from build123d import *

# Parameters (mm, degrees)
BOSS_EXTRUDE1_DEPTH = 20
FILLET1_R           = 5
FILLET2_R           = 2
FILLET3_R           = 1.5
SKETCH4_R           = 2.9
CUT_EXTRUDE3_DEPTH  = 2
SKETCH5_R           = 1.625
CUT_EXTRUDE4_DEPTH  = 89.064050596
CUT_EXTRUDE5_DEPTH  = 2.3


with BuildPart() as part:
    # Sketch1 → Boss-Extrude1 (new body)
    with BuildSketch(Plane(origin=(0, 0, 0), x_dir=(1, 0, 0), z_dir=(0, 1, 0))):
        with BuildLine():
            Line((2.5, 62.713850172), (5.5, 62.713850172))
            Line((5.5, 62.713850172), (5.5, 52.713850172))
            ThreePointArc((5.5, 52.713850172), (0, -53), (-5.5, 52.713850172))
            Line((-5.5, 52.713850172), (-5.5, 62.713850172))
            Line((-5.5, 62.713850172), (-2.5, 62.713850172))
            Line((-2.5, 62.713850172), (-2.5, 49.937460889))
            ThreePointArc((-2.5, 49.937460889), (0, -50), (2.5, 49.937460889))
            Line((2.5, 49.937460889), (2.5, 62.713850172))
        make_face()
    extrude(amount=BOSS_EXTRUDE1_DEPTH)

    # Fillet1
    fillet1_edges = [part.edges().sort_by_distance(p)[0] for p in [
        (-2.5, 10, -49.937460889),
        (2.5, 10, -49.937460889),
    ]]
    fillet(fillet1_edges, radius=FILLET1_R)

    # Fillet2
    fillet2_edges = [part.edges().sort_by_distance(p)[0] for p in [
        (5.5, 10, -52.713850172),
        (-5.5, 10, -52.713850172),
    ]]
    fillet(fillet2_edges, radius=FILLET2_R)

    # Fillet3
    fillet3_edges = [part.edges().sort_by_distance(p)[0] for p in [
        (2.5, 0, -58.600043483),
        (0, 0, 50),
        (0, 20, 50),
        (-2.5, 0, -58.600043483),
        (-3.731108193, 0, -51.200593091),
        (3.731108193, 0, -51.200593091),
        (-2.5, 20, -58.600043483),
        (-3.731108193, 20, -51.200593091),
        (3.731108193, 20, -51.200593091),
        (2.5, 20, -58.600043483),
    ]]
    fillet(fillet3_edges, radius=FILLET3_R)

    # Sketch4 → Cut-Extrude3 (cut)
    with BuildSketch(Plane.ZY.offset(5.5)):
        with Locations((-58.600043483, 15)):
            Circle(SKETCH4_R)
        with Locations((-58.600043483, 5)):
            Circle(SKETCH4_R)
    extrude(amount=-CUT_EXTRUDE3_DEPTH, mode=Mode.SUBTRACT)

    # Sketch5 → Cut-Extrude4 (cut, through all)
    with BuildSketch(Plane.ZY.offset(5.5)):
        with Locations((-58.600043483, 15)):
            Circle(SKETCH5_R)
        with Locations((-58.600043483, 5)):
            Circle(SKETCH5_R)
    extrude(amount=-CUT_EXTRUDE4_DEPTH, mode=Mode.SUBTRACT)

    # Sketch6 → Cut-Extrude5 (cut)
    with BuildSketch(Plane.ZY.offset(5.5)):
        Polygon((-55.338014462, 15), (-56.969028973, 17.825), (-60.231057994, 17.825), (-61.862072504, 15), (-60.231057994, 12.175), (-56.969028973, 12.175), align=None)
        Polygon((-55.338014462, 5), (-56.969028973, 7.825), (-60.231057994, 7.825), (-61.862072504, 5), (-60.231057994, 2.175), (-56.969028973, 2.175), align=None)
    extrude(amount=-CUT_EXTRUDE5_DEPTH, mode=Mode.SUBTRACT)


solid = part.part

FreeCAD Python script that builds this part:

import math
import FreeCAD as App
import Part
import Sketcher
from FreeCAD import Vector
Q = App.Units.Quantity


def edges_at(feature, points):
    """Names of the edges that pass closest to the given points."""
    edges = feature.Shape.Edges
    near = lambda p: min(range(len(edges)), key=lambda i: edges[i].distToShape(Part.Vertex(*p))[0])
    return sorted({f"Edge{near(p) + 1}" for p in points})


def add_polygon(sketch, points):
    """Adds a closed chain of lines whose ends are joined by coincident constraints."""
    first, n = sketch.GeometryCount, len(points)
    for a, b in zip(points, points[1:] + points[:1]):
        sketch.addGeometry(Part.LineSegment(App.Vector(*a, 0), App.Vector(*b, 0)), False)
    for i in range(n):
        sketch.addConstraint(Sketcher.Constraint("Coincident", first + i, 2, first + (i + 1) % n, 1))

doc = App.newDocument("Part")
body = doc.addObject("PartDesign::Body", "Body")

# Sketch on XZ plane
sketch1 = body.newObject("Sketcher::SketchObject", "Sketch")
sketch1.AttachmentSupport = (doc.getObject("XZ_Plane"), [""])
sketch1.MapMode = "FlatFace"
sketch1.addGeometry([
    Part.LineSegment(Vector(5.5, -62.7, 0), Vector(2.5, -62.7, 0)),  # 0
    Part.LineSegment(Vector(2.5, -62.7, 0), Vector(2.5, -49.9, 0)),  # 1
    Part.ArcOfCircle(Part.Circle(Vector(0, 0, 0), Vector(0, 0, 1), 50), math.radians(-87), math.radians(267)),  # 2
    Part.LineSegment(Vector(-2.5, -49.9, 0), Vector(-2.5, -62.7, 0)),  # 3
    Part.LineSegment(Vector(-2.5, -62.7, 0), Vector(-5.5, -62.7, 0)),  # 4
    Part.LineSegment(Vector(-5.5, -62.7, 0), Vector(-5.5, -52.7, 0)),  # 5
    Part.ArcOfCircle(Part.Circle(Vector(0, 0, 0), Vector(0, 0, 1), 53), math.radians(-84), math.radians(264)),  # 6
    Part.LineSegment(Vector(5.5, -52.7, 0), Vector(5.5, -62.7, 0)),  # 7
], False)
sketch1.addConstraint([
    Sketcher.Constraint("Coincident", 0, 2, 1, 1),
    Sketcher.Constraint("Coincident", 1, 2, 2, 1),
    Sketcher.Constraint("Coincident", 2, 2, 3, 1),
    Sketcher.Constraint("Coincident", 3, 2, 4, 1),
    Sketcher.Constraint("Coincident", 4, 2, 5, 1),
    Sketcher.Constraint("Coincident", 5, 2, 6, 2),
    Sketcher.Constraint("Coincident", 6, 1, 7, 1),
    Sketcher.Constraint("Coincident", 7, 2, 0, 1),
    Sketcher.Constraint("Horizontal", 0),
    Sketcher.Constraint("Vertical", 1),
    Sketcher.Constraint("Vertical", 3),
    Sketcher.Constraint("Horizontal", 4),
    Sketcher.Constraint("Vertical", 5),
    Sketcher.Constraint("Vertical", 7),
    Sketcher.Constraint("Coincident", 2, 3, -1, 1),
    Sketcher.Constraint("Coincident", 6, 3, -1, 1),
    Sketcher.Constraint("Symmetric", 0, 2, 3, 2, -2),
    Sketcher.Constraint("Horizontal", 5, 2, 6, 1),
    Sketcher.Constraint("Radius", 2, Q("50 mm")),
    Sketcher.Constraint("Radius", 6, Q("53 mm")),
    Sketcher.Constraint("DistanceX", 0, 2, 0, 1, Q("3 mm")),
    Sketcher.Constraint("DistanceY", 5, 1, 5, 2, Q("10 mm")),
    Sketcher.Constraint("DistanceX", 2, 2, 1, 2, Q("5 mm")),
])
pad1 = body.newObject("PartDesign::Pad", "Pad")
pad1.Profile = sketch1
pad1.Length = 20
pad1.Reversed = True
doc.recompute()

fillet = body.newObject("PartDesign::Fillet", "Fillet")
fillet.Base = (pad1, edges_at(pad1, [(-2.5, 10, -49.937), (2.5, 10, -49.937)]))
fillet.Radius = 5
doc.recompute()

fillet2 = body.newObject("PartDesign::Fillet", "Fillet001")
fillet2.Base = (fillet, edges_at(fillet, [(5.5, 10, -52.714), (-5.5, 10, -52.714)]))
fillet2.Radius = 2
doc.recompute()

fillet3 = body.newObject("PartDesign::Fillet", "Fillet002")
fillet3.Base = (fillet2, edges_at(fillet2, [
    (2.5, 0, -58.6),
    (0, 0, 50),
    (0, 20, 50),
    (-2.5, 0, -58.6),
    (-3.731, 0, -51.201),
    (3.731, 0, -51.201),
    (-2.5, 20, -58.6),
    (-3.731, 20, -51.201),
    (3.731, 20, -51.201),
    (2.5, 20, -58.6),
]))
fillet3.Radius = 1.5

# Sketch on YZ plane
sketch2 = body.newObject("Sketcher::SketchObject", "Sketch001")
sketch2.AttachmentSupport = (doc.getObject("YZ_Plane"), [""])
sketch2.MapMode = "FlatFace"
sketch2.AttachmentOffset = App.Placement(Vector(0, 0, -5.5), App.Rotation())
sketch2.addGeometry([
    Part.Circle(Vector(15, -58.600043, 0), Vector(0, 0, 1), 2.9),
    Part.Circle(Vector(5, -58.600043, 0), Vector(0, 0, 1), 2.9),
], False)
sketch2.addConstraint([
    Sketcher.Constraint("Equal", 0, 1),
    Sketcher.Constraint("Horizontal", 0, 3, 1, 3),
    Sketcher.Constraint("Diameter", 0, Q("5.8 mm")),
    Sketcher.Constraint("DistanceX", -1, 1, 0, 3, Q("15 mm")),
    Sketcher.Constraint("DistanceX", -1, 1, 1, 3, Q("5 mm")),
    Sketcher.Constraint("DistanceY", 0, 3, -1, 1, Q("58.600043 mm")),
])
pocket1 = body.newObject("PartDesign::Pocket", "Pocket")
pocket1.Profile = sketch2
pocket1.Length = 2
pocket1.Reversed = True

# Sketch on YZ plane
sketch3 = body.newObject("Sketcher::SketchObject", "Sketch002")
sketch3.AttachmentSupport = (doc.getObject("YZ_Plane"), [""])
sketch3.MapMode = "FlatFace"
sketch3.AttachmentOffset = App.Placement(Vector(0, 0, -5.5), App.Rotation())
sketch3.addGeometry([
    Part.Circle(Vector(15, -58.6, 0), Vector(0, 0, 1), 1.6),
    Part.Circle(Vector(5, -58.6, 0), Vector(0, 0, 1), 1.6),
], False)
sketch3.addConstraint([
    Sketcher.Constraint("Equal", 0, 1),
    Sketcher.Constraint("Horizontal", 0, 3, 1, 3),
    Sketcher.Constraint("Diameter", 0, Q("3.25 mm")),
    Sketcher.Constraint("DistanceX", -1, 1, 0, 3, Q("15 mm")),
    Sketcher.Constraint("DistanceX", -1, 1, 1, 3, Q("5 mm")),
    Sketcher.Constraint("DistanceY", 0, 3, -1, 1, Q("58.600043 mm")),
])
pocket2 = body.newObject("PartDesign::Pocket", "Pocket001")
pocket2.Profile = sketch3
pocket2.Type = "ThroughAll"
pocket2.Reversed = True

# Sketch on YZ plane
sketch4 = body.newObject("Sketcher::SketchObject", "Sketch003")
sketch4.AttachmentSupport = (doc.getObject("YZ_Plane"), [""])
sketch4.MapMode = "FlatFace"
sketch4.AttachmentOffset = App.Placement(Vector(0, 0, -5.5), App.Rotation())
add_polygon(sketch4, [(15, -55.3), (17.8, -57), (17.8, -60.2), (15, -61.9), (12.2, -60.2), (12.2, -57)])  # lines 0-5
add_polygon(sketch4, [(5, -55.3), (7.8, -57), (7.8, -60.2), (5, -61.9), (2.2, -60.2), (2.2, -57)])  # lines 6-11
sketch4.addConstraint([
    Sketcher.Constraint("Vertical", 1),
    Sketcher.Constraint("Vertical", 4),
    Sketcher.Constraint("Vertical", 7),
    Sketcher.Constraint("Vertical", 10),
    Sketcher.Constraint("Parallel", 0, 3),
    Sketcher.Constraint("Parallel", 2, 5),
    Sketcher.Constraint("Parallel", 3, 6),
    Sketcher.Constraint("Parallel", 5, 8),
    Sketcher.Constraint("Parallel", 6, 9),
    Sketcher.Constraint("Parallel", 8, 11),
    Sketcher.Constraint("Horizontal", 1, 2, 3, 2),
    Sketcher.Constraint("Horizontal", 0, 2, 4, 2),
    Sketcher.Constraint("Horizontal", 4, 2, 6, 2),
    Sketcher.Constraint("Horizontal", 3, 2, 7, 2),
    Sketcher.Constraint("Horizontal", 2, 2, 8, 2),
    Sketcher.Constraint("Horizontal", 7, 2, 9, 2),
    Sketcher.Constraint("Horizontal", 6, 2, 10, 2),
    Sketcher.Constraint("Vertical", 2, 2, 5, 2),
    Sketcher.Constraint("Angle", 0, Q("-30 deg")),
    Sketcher.Constraint("DistanceX", -1, 1, 2, 2, Q("15 mm")),
    Sketcher.Constraint("DistanceX", -1, 1, 8, 2, Q("5 mm")),
    Sketcher.Constraint("DistanceX", 3, 2, 1, 2, Q("5.65 mm")),
    Sketcher.Constraint("DistanceY", 1, 2, 1, 1, Q("3.262029 mm")),
    Sketcher.Constraint("DistanceY", 0, 2, -1, 1, Q("56.969029 mm")),
])
pocket3 = body.newObject("PartDesign::Pocket", "Pocket002")
pocket3.Profile = sketch4
pocket3.Length = 2.3
pocket3.Reversed = True

doc.recompute()
